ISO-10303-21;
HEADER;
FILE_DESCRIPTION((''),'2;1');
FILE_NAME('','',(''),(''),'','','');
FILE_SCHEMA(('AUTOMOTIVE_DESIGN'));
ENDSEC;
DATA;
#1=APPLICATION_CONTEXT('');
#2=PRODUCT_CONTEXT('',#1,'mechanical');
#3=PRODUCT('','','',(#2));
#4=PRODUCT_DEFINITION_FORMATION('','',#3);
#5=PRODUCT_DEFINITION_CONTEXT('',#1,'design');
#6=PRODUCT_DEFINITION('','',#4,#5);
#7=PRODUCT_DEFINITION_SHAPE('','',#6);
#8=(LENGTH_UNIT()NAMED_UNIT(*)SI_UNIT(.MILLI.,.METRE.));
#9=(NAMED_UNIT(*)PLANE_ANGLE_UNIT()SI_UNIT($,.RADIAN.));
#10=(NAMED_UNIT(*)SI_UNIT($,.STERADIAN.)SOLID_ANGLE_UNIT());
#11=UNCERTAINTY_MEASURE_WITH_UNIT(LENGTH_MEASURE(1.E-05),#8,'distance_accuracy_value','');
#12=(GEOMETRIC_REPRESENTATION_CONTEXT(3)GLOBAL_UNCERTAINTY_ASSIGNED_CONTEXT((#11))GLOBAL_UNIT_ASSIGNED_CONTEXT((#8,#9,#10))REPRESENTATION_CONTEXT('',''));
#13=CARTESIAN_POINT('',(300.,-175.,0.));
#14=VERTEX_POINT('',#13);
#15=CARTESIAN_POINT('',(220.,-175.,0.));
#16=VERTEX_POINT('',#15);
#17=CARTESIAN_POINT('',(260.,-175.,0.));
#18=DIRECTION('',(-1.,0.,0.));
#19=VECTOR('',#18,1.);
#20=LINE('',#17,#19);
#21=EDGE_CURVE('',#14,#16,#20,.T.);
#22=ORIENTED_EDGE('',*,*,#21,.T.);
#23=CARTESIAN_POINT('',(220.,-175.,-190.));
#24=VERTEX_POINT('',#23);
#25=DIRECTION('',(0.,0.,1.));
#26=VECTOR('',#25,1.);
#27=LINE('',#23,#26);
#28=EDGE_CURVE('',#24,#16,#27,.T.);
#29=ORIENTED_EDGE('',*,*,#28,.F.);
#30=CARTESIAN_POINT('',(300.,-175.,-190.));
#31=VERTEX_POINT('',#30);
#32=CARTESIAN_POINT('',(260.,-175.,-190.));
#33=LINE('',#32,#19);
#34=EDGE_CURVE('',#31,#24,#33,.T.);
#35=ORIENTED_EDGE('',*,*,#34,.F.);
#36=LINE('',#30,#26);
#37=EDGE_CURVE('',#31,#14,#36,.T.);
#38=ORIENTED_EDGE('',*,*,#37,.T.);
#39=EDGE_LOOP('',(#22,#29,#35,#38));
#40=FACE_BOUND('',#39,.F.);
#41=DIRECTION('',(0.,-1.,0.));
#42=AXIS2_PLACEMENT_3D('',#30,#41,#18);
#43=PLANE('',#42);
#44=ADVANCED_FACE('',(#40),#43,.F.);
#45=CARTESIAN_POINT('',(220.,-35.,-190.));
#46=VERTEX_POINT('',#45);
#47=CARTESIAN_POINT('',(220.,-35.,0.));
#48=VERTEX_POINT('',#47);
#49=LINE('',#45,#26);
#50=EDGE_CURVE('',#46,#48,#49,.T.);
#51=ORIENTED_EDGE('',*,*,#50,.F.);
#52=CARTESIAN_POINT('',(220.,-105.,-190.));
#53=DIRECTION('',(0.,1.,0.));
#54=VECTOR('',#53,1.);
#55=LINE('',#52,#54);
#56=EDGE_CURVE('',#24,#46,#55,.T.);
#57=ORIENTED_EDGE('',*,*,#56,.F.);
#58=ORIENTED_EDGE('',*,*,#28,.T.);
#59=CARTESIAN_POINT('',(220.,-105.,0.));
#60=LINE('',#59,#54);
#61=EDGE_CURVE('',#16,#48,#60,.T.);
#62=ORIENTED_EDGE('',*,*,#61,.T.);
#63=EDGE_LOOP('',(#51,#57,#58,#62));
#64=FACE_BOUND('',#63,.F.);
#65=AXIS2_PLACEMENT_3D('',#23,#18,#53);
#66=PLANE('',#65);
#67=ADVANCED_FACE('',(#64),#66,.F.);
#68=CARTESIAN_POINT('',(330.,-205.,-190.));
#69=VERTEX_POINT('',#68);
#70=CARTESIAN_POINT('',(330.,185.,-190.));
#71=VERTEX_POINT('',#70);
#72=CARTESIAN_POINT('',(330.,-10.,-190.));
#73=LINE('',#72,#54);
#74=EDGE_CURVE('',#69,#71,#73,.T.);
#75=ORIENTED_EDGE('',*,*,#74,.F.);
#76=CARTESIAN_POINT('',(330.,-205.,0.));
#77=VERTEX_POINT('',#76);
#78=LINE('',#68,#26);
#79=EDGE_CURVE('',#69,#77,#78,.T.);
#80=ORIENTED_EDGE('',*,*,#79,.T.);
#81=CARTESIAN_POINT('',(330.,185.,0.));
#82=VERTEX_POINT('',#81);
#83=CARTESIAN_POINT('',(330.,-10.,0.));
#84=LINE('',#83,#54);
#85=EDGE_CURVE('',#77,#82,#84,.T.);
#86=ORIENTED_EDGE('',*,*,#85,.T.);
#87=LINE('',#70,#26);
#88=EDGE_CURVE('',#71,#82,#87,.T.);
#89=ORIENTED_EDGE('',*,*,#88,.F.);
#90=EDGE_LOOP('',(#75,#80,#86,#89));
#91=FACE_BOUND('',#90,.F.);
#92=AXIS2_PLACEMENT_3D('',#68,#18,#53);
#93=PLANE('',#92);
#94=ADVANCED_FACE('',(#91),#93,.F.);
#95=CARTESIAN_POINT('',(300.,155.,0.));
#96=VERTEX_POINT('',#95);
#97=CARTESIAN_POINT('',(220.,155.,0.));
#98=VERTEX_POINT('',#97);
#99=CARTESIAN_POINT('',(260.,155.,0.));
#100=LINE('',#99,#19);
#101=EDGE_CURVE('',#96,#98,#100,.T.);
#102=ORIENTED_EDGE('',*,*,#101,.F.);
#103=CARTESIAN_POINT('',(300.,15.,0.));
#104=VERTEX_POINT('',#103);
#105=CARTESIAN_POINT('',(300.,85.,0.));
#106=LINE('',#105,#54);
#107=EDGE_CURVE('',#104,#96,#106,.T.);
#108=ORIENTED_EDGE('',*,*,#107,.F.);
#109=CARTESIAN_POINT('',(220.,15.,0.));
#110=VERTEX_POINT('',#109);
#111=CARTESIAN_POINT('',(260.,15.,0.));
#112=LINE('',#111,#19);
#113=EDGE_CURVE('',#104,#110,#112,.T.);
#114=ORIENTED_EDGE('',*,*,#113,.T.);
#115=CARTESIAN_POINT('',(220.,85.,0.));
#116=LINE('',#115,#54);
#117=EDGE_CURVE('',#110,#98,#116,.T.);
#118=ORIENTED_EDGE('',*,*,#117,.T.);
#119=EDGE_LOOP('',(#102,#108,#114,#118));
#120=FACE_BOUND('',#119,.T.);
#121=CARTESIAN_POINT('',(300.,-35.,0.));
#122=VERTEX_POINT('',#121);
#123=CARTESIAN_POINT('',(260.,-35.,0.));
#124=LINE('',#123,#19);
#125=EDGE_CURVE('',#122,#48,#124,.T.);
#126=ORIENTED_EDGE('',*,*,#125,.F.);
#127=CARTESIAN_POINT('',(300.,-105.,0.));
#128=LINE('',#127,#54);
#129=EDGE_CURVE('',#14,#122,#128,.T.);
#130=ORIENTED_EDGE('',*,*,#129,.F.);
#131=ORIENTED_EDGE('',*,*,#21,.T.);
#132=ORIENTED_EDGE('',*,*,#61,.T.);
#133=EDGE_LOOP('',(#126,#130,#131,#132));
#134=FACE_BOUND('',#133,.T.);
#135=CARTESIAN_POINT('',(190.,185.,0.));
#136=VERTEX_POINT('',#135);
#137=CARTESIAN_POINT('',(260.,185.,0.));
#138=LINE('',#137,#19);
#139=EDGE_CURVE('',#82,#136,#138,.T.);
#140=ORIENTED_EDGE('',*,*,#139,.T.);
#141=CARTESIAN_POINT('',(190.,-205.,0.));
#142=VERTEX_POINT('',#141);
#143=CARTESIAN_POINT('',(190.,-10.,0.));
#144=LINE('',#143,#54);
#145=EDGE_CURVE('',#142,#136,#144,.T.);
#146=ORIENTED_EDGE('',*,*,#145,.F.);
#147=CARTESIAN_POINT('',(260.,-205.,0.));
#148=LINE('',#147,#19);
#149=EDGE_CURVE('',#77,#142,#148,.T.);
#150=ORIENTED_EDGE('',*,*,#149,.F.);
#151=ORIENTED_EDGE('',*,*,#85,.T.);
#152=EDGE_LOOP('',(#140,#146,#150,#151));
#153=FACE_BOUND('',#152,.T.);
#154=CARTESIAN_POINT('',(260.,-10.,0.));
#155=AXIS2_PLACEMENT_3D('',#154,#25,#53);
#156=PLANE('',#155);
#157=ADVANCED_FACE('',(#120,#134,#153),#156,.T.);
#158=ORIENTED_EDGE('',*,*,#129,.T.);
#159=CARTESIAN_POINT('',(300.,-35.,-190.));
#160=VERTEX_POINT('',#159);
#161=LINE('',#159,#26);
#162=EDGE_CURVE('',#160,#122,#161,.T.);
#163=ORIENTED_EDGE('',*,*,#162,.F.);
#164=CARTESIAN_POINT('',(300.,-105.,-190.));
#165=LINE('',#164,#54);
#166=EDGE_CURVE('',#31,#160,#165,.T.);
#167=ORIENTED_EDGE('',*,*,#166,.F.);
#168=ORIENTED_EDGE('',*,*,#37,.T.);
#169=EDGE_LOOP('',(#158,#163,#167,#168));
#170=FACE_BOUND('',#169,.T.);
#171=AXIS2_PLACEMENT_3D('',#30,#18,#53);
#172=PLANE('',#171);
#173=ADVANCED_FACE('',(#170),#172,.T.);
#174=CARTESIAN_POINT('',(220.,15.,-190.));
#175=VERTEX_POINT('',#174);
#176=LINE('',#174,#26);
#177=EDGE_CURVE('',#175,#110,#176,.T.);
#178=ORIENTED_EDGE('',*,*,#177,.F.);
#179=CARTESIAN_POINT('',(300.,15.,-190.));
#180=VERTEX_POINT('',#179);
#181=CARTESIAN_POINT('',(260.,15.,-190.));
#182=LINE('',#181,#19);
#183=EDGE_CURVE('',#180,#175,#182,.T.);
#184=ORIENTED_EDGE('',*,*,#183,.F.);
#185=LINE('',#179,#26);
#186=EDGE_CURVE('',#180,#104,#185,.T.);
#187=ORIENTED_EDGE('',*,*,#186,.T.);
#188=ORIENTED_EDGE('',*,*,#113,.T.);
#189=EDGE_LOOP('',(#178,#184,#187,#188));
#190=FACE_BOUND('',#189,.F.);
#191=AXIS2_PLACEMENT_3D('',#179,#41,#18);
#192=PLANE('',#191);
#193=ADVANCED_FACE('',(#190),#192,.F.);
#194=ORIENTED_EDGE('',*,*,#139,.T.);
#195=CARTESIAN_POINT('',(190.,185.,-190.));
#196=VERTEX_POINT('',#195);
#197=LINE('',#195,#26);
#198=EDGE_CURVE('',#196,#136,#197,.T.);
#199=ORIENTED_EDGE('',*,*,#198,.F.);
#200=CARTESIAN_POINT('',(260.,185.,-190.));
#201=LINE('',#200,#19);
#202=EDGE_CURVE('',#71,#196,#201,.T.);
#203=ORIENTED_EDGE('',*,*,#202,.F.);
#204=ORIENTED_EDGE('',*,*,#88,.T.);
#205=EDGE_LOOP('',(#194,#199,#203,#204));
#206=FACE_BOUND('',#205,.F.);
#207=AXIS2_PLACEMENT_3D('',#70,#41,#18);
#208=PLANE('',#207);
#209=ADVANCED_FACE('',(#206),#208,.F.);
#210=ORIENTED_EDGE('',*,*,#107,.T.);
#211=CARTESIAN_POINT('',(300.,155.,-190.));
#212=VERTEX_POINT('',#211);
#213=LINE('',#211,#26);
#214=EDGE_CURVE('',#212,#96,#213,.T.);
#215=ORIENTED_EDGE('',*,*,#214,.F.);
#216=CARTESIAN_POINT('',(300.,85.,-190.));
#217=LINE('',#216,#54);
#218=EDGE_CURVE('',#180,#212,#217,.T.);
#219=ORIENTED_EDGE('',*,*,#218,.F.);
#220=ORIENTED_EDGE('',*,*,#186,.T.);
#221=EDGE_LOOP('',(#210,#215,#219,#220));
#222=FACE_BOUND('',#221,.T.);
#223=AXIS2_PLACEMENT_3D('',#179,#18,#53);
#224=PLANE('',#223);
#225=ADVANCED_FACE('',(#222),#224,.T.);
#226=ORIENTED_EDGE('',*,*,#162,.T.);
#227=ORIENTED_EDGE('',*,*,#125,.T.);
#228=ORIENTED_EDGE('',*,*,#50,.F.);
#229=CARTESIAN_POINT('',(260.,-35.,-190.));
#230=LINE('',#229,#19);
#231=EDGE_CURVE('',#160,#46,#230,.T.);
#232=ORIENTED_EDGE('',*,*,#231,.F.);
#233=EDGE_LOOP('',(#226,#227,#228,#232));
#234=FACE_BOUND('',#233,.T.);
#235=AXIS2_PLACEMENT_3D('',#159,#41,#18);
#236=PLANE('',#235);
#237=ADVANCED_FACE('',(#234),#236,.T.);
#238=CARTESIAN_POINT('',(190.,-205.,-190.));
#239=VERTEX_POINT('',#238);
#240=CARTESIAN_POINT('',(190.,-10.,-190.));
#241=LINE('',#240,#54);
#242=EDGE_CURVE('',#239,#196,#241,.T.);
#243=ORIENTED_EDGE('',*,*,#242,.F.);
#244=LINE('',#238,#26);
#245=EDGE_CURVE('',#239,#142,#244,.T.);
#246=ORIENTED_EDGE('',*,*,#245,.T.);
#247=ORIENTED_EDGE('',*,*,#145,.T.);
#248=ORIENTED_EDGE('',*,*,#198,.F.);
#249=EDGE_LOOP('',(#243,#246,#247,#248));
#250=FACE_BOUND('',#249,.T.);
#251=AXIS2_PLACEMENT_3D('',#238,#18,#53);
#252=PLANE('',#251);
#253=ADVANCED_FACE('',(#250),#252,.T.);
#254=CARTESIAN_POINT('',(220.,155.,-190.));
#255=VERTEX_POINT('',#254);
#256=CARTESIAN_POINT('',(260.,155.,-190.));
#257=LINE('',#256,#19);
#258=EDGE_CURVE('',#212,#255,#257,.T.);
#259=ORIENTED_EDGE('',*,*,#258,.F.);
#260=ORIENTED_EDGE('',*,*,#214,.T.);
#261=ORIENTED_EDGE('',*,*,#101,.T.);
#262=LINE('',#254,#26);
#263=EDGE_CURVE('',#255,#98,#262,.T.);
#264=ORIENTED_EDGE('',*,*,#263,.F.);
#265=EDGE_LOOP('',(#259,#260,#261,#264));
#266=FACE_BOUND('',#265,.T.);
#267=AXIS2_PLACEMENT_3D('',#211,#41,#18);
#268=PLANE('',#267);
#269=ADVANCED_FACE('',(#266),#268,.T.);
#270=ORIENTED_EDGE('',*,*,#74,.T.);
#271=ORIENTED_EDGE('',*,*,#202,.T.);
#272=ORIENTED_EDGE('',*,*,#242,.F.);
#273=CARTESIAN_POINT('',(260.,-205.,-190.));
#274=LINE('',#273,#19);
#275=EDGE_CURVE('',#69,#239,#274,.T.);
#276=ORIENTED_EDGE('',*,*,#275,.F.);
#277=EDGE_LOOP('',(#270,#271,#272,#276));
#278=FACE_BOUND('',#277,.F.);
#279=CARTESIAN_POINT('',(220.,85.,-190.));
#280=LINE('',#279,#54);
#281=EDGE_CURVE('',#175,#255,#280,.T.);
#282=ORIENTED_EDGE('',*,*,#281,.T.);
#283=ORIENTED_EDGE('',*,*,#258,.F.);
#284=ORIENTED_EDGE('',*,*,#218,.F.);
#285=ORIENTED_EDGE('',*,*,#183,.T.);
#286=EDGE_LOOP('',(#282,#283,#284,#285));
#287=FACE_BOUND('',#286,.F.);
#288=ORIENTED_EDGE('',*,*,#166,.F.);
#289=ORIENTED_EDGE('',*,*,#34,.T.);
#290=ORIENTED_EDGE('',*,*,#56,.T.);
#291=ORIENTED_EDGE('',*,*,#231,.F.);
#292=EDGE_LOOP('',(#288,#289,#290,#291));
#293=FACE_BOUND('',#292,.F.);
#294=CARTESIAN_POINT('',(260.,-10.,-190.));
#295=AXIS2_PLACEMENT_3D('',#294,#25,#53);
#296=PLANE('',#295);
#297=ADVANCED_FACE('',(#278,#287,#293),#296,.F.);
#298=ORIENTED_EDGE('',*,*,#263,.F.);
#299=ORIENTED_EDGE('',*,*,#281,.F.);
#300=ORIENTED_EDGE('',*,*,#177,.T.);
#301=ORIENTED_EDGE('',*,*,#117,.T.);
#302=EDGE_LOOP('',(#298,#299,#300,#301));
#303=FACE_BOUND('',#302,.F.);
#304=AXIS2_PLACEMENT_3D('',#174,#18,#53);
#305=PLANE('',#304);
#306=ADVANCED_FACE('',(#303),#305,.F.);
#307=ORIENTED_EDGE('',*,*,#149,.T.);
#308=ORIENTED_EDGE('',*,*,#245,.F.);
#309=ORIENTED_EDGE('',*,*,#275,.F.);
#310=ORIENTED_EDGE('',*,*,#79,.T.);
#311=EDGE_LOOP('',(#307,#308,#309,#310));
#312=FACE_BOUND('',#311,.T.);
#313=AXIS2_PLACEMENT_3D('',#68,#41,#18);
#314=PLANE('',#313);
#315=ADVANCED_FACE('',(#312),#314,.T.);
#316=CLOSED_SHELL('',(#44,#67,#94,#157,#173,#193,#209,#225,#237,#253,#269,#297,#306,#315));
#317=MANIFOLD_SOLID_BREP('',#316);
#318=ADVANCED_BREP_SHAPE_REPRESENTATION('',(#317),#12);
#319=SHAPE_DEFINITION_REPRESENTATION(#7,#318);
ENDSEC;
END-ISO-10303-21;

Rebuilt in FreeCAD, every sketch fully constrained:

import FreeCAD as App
import Part
import Sketcher
from FreeCAD import Vector
Q = App.Units.Quantity


def add_polygon(sketch, points):
    """Adds a closed chain of lines whose ends are joined by coincident constraints."""
    first, n = sketch.GeometryCount, len(points)
    for a, b in zip(points, points[1:] + points[:1]):
        sketch.addGeometry(Part.LineSegment(App.Vector(*a, 0), App.Vector(*b, 0)), False)
    for i in range(n):
        sketch.addConstraint(Sketcher.Constraint("Coincident", first + i, 2, first + (i + 1) % n, 1))

doc = App.newDocument("Part")
body = doc.addObject("PartDesign::Body", "Body")

# Sketch on XY plane
sketch1 = doc.addObject("Sketcher::SketchObject", "Sketch")
body.addObject(sketch1)
sketch1.AttachmentSupport = (doc.XY_Plane, [""])
sketch1.MapMode = "FlatFace"
add_polygon(sketch1, [(220, 110), (220, 30), (360, 30), (360, 110)])  # lines 0-3
sketch1.addConstraint(Sketcher.Constraint("Vertical", 0))
sketch1.addConstraint(Sketcher.Constraint("Horizontal", 1))
sketch1.addConstraint(Sketcher.Constraint("Vertical", 2))
sketch1.addConstraint(Sketcher.Constraint("Horizontal", 3))
sketch1.addConstraint(Sketcher.Constraint("DistanceX", 1, 1, 1, 2, Q("140 mm")))
sketch1.addConstraint(Sketcher.Constraint("DistanceY", 0, 2, 0, 1, Q("80 mm")))
sketch1.addConstraint(Sketcher.Constraint("DistanceX", -1, 1, 0, 2, Q("220 mm")))
sketch1.addConstraint(Sketcher.Constraint("DistanceY", -1, 1, 0, 2, Q("30 mm")))
pad1 = doc.addObject("PartDesign::Pad", "Pad")
body.addObject(pad1)
pad1.Profile = sketch1
pad1.Length = 190
body2 = doc.addObject("PartDesign::Body", "Body001")
body2.AllowCompound = True

# Sketch on XY plane
sketch2 = doc.addObject("Sketcher::SketchObject", "Sketch001")
body2.addObject(sketch2)
sketch2.AttachmentSupport = (doc.getObject("XY_Plane001"), [""])
sketch2.MapMode = "FlatFace"
add_polygon(sketch2, [(30, 110), (30, 30), (170, 30), (170, 110)])  # lines 0-3
sketch2.addConstraint(Sketcher.Constraint("Vertical", 0))
sketch2.addConstraint(Sketcher.Constraint("Horizontal", 1))
sketch2.addConstraint(Sketcher.Constraint("Vertical", 2))
sketch2.addConstraint(Sketcher.Constraint("Horizontal", 3))
sketch2.addConstraint(Sketcher.Constraint("DistanceX", 1, 1, 1, 2, Q("140 mm")))
sketch2.addConstraint(Sketcher.Constraint("DistanceY", 0, 2, 0, 1, Q("80 mm")))
sketch2.addConstraint(Sketcher.Constraint("DistanceX", -1, 1, 0, 2, Q("30 mm")))
sketch2.addConstraint(Sketcher.Constraint("DistanceY", -1, 1, 0, 2, Q("30 mm")))
pad2 = doc.addObject("PartDesign::Pad", "Pad001")
body2.addObject(pad2)
pad2.Profile = sketch2
pad2.Length = 190
doc.recompute()

boolean = doc.addObject("PartDesign::Boolean", "Boolean")
body2.addObject(boolean)
boolean.Type = "Fuse"
boolean.addObjects([body])
body3 = doc.addObject("PartDesign::Body", "Body002")

# Sketch on XY plane
sketch3 = doc.addObject("Sketcher::SketchObject", "Sketch002")
body3.addObject(sketch3)
sketch3.AttachmentSupport = (doc.getObject("XY_Plane002"), [""])
sketch3.MapMode = "FlatFace"
add_polygon(sketch3, [(0, 140), (0, 0), (390, 0), (390, 140)])  # lines 0-3
sketch3.addConstraint(Sketcher.Constraint("Vertical", 0))
sketch3.addConstraint(Sketcher.Constraint("Horizontal", 1))
sketch3.addConstraint(Sketcher.Constraint("Vertical", 2))
sketch3.addConstraint(Sketcher.Constraint("Horizontal", 3))
sketch3.addConstraint(Sketcher.Constraint("Coincident", 0, 2, -1, 1))
sketch3.addConstraint(Sketcher.Constraint("DistanceX", 1, 1, 1, 2, Q("390 mm")))
sketch3.addConstraint(Sketcher.Constraint("DistanceY", 0, 2, 0, 1, Q("140 mm")))
pad3 = doc.addObject("PartDesign::Pad", "Pad002")
body3.addObject(pad3)
pad3.Profile = sketch3
pad3.Length = 190
doc.recompute()

boolean2 = doc.addObject("PartDesign::Boolean", "Boolean001")
body3.addObject(boolean2)
boolean2.Type = "Cut"
boolean2.addObjects([body2])
body4 = doc.addObject("PartDesign::Body", "Body003")
doc.recompute()

body3.Placement = App.Placement(Vector(330, -205, -190), App.Rotation(Vector(0, 0, 1), 90))
boolean3 = doc.addObject("PartDesign::Boolean", "Boolean002")
body4.addObject(boolean3)
boolean3.Type = "Fuse"
boolean3.addObjects([body3])

doc.recompute()
